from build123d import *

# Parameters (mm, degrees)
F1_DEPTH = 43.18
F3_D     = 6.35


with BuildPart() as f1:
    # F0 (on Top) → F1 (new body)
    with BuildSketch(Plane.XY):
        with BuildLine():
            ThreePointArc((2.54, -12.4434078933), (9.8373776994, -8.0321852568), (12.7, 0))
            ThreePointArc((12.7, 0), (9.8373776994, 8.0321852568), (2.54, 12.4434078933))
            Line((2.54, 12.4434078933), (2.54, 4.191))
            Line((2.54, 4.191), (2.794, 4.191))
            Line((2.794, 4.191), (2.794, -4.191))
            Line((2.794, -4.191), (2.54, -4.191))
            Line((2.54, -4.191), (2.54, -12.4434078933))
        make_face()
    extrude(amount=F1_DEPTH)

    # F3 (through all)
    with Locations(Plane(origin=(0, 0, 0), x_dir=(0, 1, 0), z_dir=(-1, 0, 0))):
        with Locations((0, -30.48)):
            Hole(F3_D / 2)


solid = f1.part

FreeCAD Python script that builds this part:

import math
import FreeCAD as App
import Part
import Sketcher
from FreeCAD import Vector
Q = App.Units.Quantity

doc = App.newDocument("Part")
body = doc.addObject("PartDesign::Body", "Body")

# Sketch on XY plane
sketch1 = doc.addObject("Sketcher::SketchObject", "Sketch")
body.addObject(sketch1)
sketch1.AttachmentSupport = (doc.XY_Plane, [""])
sketch1.MapMode = "FlatFace"
sketch1.addGeometry(Part.ArcOfCircle(Part.Circle(Vector(0, 0, 0), Vector(0, 0, 1), 12.7), math.radians(-78), math.radians(0)), False)
sketch1.addGeometry(Part.ArcOfCircle(Part.Circle(Vector(0, 0, 0), Vector(0, 0, 1), 12.7), math.radians(0), math.radians(78)), False)
sketch1.addGeometry(Part.LineSegment(Vector(2.54, 12.44, 0), Vector(2.54, 4.19, 0)), False)
sketch1.addGeometry(Part.LineSegment(Vector(2.54, 4.19, 0), Vector(2.79, 4.19, 0)), False)
sketch1.addGeometry(Part.LineSegment(Vector(2.79, 4.19, 0), Vector(2.79, -4.19, 0)), False)
sketch1.addGeometry(Part.LineSegment(Vector(2.79, -4.19, 0), Vector(2.54, -4.19, 0)), False)
sketch1.addGeometry(Part.LineSegment(Vector(2.54, -4.19, 0), Vector(2.54, -12.44, 0)), False)
sketch1.addConstraint(Sketcher.Constraint("Tangent", 0, 2, 1, 1))
sketch1.addConstraint(Sketcher.Constraint("Coincident", 1, 2, 2, 1))
sketch1.addConstraint(Sketcher.Constraint("Coincident", 2, 2, 3, 1))
sketch1.addConstraint(Sketcher.Constraint("Coincident", 3, 2, 4, 1))
sketch1.addConstraint(Sketcher.Constraint("Coincident", 4, 2, 5, 1))
sketch1.addConstraint(Sketcher.Constraint("Coincident", 5, 2, 6, 1))
sketch1.addConstraint(Sketcher.Constraint("Coincident", 6, 2, 0, 1))
sketch1.addConstraint(Sketcher.Constraint("Vertical", 2))
sketch1.addConstraint(Sketcher.Constraint("Horizontal", 3))
sketch1.addConstraint(Sketcher.Constraint("Vertical", 4))
sketch1.addConstraint(Sketcher.Constraint("Horizontal", 5))
sketch1.addConstraint(Sketcher.Constraint("Vertical", 6))
sketch1.addConstraint(Sketcher.Constraint("Coincident", 0, 3, -1, 1))
sketch1.addConstraint(Sketcher.Constraint("Equal", 0, 1))
sketch1.addConstraint(Sketcher.Constraint("Symmetric", 2, 2, 5, 2, -1))
sketch1.addConstraint(Sketcher.Constraint("PointOnObject", 0, 2, -1))
sketch1.addConstraint(Sketcher.Constraint("Radius", 0, Q("0.5 in")))
sketch1.addConstraint(Sketcher.Constraint("DistanceX", 3, 1, 3, 2, Q("0.01 in")))
sketch1.addConstraint(Sketcher.Constraint("DistanceY", 4, 2, 4, 1, Q("0.33 in")))
sketch1.addConstraint(Sketcher.Constraint("DistanceX", -1, 1, 1, 2, Q("0.1 in")))
pad1 = doc.addObject("PartDesign::Pad", "Pad")
body.addObject(pad1)
pad1.Profile = sketch1
pad1.Length = Q("1.7 in")

# Sketch on YZ plane
sketch2 = doc.addObject("Sketcher::SketchObject", "Sketch001")
body.addObject(sketch2)
sketch2.AttachmentSupport = (doc.YZ_Plane, [""])
sketch2.MapMode = "FlatFace"
sketch2.addGeometry(Part.Circle(Vector(0, 30.5, 0), Vector(0, 0, 1), 3.2), False)
sketch2.addConstraint(Sketcher.Constraint("PointOnObject", 0, 3, -2))
sketch2.addConstraint(Sketcher.Constraint("Diameter", 0, Q("0.25 in")))
sketch2.addConstraint(Sketcher.Constraint("DistanceY", -1, 1, 0, 3, Q("1.2 in")))
doc.recompute()
hole = doc.addObject("PartDesign::Hole", "Hole")
body.addObject(hole)
hole.Profile = sketch2
hole.ThreadType = "None"
hole.Diameter = Q("0.25 in")
hole.DepthType = "ThroughAll"
hole.Reversed = True

doc.recompute()
